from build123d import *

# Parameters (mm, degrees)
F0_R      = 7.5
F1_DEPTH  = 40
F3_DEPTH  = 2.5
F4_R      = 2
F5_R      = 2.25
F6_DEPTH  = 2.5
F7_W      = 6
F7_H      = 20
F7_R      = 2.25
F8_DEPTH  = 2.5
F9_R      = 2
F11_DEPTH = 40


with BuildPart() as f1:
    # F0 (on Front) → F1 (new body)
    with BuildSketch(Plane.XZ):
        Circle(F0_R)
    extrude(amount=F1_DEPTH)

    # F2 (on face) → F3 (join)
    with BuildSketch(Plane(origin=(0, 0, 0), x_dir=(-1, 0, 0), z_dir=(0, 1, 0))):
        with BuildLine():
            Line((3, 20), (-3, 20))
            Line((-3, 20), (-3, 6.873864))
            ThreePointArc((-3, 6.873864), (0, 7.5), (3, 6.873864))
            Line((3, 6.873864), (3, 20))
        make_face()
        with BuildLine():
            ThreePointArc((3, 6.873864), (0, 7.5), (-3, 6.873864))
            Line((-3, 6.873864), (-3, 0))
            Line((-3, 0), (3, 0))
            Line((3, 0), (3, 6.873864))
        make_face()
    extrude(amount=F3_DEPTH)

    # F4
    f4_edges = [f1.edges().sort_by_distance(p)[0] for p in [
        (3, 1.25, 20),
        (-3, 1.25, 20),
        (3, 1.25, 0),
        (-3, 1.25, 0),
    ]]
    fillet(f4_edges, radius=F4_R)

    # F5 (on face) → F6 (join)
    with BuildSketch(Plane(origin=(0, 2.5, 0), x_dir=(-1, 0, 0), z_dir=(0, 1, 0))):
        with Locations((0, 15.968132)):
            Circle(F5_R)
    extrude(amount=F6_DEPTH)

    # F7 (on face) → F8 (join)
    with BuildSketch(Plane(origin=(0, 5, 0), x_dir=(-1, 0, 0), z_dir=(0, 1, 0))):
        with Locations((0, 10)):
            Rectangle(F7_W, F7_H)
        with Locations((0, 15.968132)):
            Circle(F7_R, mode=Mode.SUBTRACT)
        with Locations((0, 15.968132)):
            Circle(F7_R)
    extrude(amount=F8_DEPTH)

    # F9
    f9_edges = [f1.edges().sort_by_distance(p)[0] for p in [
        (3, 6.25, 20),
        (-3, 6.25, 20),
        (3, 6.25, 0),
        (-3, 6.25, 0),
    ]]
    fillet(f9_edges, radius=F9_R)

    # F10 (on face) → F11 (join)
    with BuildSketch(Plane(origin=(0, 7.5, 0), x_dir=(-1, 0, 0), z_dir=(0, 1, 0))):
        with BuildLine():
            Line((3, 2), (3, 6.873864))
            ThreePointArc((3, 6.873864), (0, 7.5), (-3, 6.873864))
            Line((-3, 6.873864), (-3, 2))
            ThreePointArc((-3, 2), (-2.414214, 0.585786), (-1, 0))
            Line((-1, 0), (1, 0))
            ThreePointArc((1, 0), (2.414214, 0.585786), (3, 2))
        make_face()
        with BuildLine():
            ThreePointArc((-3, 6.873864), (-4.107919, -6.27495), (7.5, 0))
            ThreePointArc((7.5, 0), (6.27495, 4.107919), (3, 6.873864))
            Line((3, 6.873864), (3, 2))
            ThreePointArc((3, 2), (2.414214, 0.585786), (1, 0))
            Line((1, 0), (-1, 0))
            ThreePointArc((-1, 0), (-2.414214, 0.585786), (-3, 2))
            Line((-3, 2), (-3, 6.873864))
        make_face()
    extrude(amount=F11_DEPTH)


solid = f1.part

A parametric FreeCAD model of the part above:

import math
import FreeCAD as App
import Part
import Sketcher


def edges_at(feature, points):
    """Names of the edges that pass closest to the given points."""
    edges = feature.Shape.Edges
    near = lambda p: min(range(len(edges)), key=lambda i: edges[i].distToShape(Part.Vertex(*p))[0])
    return sorted({f"Edge{near(p) + 1}" for p in points})


def add_polygon(sketch, points):
    """Adds a closed chain of lines whose ends are joined by coincident constraints."""
    first, n = sketch.GeometryCount, len(points)
    for a, b in zip(points, points[1:] + points[:1]):
        sketch.addGeometry(Part.LineSegment(App.Vector(*a, 0), App.Vector(*b, 0)), False)
    for i in range(n):
        sketch.addConstraint(Sketcher.Constraint("Coincident", first + i, 2, first + (i + 1) % n, 1))

doc = App.newDocument("Part")
body = doc.addObject("PartDesign::Body", "Body")

sketch1 = body.newObject("Sketcher::SketchObject", "Sketch")
sketch1.AttachmentSupport = (doc.getObject("XZ_Plane"), [""])
sketch1.MapMode = "FlatFace"
sketch1.addGeometry(Part.Circle(App.Vector(0, 0, 0), App.Vector(0, 0, 1), 8), False)
sketch1.addConstraint([
    Sketcher.Constraint("Coincident", 0, 3, -1, 1),
    Sketcher.Constraint("Diameter", 0, 15.0),
])
pad1 = body.newObject("PartDesign::Pad", "Pad")
pad1.Profile = sketch1
pad1.Length = 40

sketch2 = body.newObject("Sketcher::SketchObject", "Sketch001")
sketch2.AttachmentSupport = (doc.getObject("XZ_Plane"), [""])
sketch2.MapMode = "FlatFace"
add_polygon(sketch2, [(-3, 20), (3, 20), (3, 0), (-3, 0)])
sketch2.addConstraint([
    Sketcher.Constraint("Horizontal", 0),
    Sketcher.Constraint("Vertical", 1),
    Sketcher.Constraint("Horizontal", 2),
    Sketcher.Constraint("Vertical", 3),
    Sketcher.Constraint("Symmetric", 1, 2, 2, 2, -1, 1),
    Sketcher.Constraint("DistanceX", 0, 1, 0, 2, 6.0),
    Sketcher.Constraint("DistanceY", 1, 2, 1, 1, 20.0),
])
pad2 = body.newObject("PartDesign::Pad", "Pad001")
pad2.Profile = sketch2
pad2.Length = 2.5
pad2.Reversed = True
doc.recompute()

fillet = body.newObject("PartDesign::Fillet", "Fillet")
fillet.Base = (pad2, edges_at(pad2, [
    (3, 1.25, 20),
    (-3, 1.25, 20),
    (3, 1.25, 0),
    (-3, 1.25, 0),
]))
fillet.Radius = 2

sketch3 = body.newObject("Sketcher::SketchObject", "Sketch002")
sketch3.AttachmentSupport = (doc.getObject("XZ_Plane"), [""])
sketch3.MapMode = "FlatFace"
sketch3.AttachmentOffset = App.Placement(App.Vector(0, 0, -2.5), App.Rotation())
sketch3.addGeometry(Part.Circle(App.Vector(0, 16, 0), App.Vector(0, 0, 1), 2.2), False)
sketch3.addConstraint([
    Sketcher.Constraint("PointOnObject", 0, 3, -2),
    Sketcher.Constraint("Diameter", 0, 4.5),
    Sketcher.Constraint("DistanceY", -1, 1, 0, 3, 15.968132),
])
pad3 = body.newObject("PartDesign::Pad", "Pad002")
pad3.Profile = sketch3
pad3.Length = 2.5
pad3.Reversed = True

sketch4 = body.newObject("Sketcher::SketchObject", "Sketch003")
sketch4.AttachmentSupport = (doc.getObject("XZ_Plane"), [""])
sketch4.MapMode = "FlatFace"
sketch4.AttachmentOffset = App.Placement(App.Vector(0, 0, -5), App.Rotation())
add_polygon(sketch4, [(3, 20), (3, 0), (-3, 0), (-3, 20)])
sketch4.addConstraint([
    Sketcher.Constraint("Vertical", 0),
    Sketcher.Constraint("Horizontal", 1),
    Sketcher.Constraint("Vertical", 2),
    Sketcher.Constraint("Horizontal", 3),
    Sketcher.Constraint("Symmetric", 0, 2, 1, 2, -1, 1),
    Sketcher.Constraint("DistanceX", 1, 2, 1, 1, 6.0),
    Sketcher.Constraint("DistanceY", 0, 2, 0, 1, 20.0),
])
pad4 = body.newObject("PartDesign::Pad", "Pad003")
pad4.Profile = sketch4
pad4.Length = 2.5
pad4.Reversed = True
doc.recompute()

fillet2 = body.newObject("PartDesign::Fillet", "Fillet001")
fillet2.Base = (pad4, edges_at(pad4, [
    (3, 6.25, 20),
    (-3, 6.25, 20),
    (3, 6.25, 0),
    (-3, 6.25, 0),
]))
fillet2.Radius = 2

sketch5 = body.newObject("Sketcher::SketchObject", "Sketch004")
sketch5.AttachmentSupport = (doc.getObject("XZ_Plane"), [""])
sketch5.MapMode = "FlatFace"
sketch5.AttachmentOffset = App.Placement(App.Vector(0, 0, -7.5), App.Rotation())
sketch5.addGeometry([
    Part.ArcOfCircle(Part.Circle(App.Vector(0, 0, 0), App.Vector(0, 0, 1), 8), math.radians(66), math.radians(114)),
    Part.ArcOfCircle(Part.Circle(App.Vector(0, 0, 0), App.Vector(0, 0, 1), 8), math.radians(-180), math.radians(66)),
    Part.ArcOfCircle(Part.Circle(App.Vector(0, 0, 0), App.Vector(0, 0, 1), 8), math.radians(114), math.radians(180)),
], False)
sketch5.addConstraint([
    Sketcher.Constraint("Tangent", 0, 1, 1, 2),
    Sketcher.Constraint("Tangent", 1, 1, 2, 2),
    Sketcher.Constraint("Tangent", 2, 1, 0, 2),
    Sketcher.Constraint("Coincident", 0, 3, -1, 1),
    Sketcher.Constraint("PointOnObject", 1, 1, -1),
    Sketcher.Constraint("Horizontal", 0, 1, 2, 1),
    Sketcher.Constraint("Radius", 1, 7.5),
    Sketcher.Constraint("DistanceX", -1, 1, 0, 1, 3.0),
])
pad5 = body.newObject("PartDesign::Pad", "Pad004")
pad5.Profile = sketch5
pad5.Length = 40
pad5.Reversed = True

doc.recompute()
